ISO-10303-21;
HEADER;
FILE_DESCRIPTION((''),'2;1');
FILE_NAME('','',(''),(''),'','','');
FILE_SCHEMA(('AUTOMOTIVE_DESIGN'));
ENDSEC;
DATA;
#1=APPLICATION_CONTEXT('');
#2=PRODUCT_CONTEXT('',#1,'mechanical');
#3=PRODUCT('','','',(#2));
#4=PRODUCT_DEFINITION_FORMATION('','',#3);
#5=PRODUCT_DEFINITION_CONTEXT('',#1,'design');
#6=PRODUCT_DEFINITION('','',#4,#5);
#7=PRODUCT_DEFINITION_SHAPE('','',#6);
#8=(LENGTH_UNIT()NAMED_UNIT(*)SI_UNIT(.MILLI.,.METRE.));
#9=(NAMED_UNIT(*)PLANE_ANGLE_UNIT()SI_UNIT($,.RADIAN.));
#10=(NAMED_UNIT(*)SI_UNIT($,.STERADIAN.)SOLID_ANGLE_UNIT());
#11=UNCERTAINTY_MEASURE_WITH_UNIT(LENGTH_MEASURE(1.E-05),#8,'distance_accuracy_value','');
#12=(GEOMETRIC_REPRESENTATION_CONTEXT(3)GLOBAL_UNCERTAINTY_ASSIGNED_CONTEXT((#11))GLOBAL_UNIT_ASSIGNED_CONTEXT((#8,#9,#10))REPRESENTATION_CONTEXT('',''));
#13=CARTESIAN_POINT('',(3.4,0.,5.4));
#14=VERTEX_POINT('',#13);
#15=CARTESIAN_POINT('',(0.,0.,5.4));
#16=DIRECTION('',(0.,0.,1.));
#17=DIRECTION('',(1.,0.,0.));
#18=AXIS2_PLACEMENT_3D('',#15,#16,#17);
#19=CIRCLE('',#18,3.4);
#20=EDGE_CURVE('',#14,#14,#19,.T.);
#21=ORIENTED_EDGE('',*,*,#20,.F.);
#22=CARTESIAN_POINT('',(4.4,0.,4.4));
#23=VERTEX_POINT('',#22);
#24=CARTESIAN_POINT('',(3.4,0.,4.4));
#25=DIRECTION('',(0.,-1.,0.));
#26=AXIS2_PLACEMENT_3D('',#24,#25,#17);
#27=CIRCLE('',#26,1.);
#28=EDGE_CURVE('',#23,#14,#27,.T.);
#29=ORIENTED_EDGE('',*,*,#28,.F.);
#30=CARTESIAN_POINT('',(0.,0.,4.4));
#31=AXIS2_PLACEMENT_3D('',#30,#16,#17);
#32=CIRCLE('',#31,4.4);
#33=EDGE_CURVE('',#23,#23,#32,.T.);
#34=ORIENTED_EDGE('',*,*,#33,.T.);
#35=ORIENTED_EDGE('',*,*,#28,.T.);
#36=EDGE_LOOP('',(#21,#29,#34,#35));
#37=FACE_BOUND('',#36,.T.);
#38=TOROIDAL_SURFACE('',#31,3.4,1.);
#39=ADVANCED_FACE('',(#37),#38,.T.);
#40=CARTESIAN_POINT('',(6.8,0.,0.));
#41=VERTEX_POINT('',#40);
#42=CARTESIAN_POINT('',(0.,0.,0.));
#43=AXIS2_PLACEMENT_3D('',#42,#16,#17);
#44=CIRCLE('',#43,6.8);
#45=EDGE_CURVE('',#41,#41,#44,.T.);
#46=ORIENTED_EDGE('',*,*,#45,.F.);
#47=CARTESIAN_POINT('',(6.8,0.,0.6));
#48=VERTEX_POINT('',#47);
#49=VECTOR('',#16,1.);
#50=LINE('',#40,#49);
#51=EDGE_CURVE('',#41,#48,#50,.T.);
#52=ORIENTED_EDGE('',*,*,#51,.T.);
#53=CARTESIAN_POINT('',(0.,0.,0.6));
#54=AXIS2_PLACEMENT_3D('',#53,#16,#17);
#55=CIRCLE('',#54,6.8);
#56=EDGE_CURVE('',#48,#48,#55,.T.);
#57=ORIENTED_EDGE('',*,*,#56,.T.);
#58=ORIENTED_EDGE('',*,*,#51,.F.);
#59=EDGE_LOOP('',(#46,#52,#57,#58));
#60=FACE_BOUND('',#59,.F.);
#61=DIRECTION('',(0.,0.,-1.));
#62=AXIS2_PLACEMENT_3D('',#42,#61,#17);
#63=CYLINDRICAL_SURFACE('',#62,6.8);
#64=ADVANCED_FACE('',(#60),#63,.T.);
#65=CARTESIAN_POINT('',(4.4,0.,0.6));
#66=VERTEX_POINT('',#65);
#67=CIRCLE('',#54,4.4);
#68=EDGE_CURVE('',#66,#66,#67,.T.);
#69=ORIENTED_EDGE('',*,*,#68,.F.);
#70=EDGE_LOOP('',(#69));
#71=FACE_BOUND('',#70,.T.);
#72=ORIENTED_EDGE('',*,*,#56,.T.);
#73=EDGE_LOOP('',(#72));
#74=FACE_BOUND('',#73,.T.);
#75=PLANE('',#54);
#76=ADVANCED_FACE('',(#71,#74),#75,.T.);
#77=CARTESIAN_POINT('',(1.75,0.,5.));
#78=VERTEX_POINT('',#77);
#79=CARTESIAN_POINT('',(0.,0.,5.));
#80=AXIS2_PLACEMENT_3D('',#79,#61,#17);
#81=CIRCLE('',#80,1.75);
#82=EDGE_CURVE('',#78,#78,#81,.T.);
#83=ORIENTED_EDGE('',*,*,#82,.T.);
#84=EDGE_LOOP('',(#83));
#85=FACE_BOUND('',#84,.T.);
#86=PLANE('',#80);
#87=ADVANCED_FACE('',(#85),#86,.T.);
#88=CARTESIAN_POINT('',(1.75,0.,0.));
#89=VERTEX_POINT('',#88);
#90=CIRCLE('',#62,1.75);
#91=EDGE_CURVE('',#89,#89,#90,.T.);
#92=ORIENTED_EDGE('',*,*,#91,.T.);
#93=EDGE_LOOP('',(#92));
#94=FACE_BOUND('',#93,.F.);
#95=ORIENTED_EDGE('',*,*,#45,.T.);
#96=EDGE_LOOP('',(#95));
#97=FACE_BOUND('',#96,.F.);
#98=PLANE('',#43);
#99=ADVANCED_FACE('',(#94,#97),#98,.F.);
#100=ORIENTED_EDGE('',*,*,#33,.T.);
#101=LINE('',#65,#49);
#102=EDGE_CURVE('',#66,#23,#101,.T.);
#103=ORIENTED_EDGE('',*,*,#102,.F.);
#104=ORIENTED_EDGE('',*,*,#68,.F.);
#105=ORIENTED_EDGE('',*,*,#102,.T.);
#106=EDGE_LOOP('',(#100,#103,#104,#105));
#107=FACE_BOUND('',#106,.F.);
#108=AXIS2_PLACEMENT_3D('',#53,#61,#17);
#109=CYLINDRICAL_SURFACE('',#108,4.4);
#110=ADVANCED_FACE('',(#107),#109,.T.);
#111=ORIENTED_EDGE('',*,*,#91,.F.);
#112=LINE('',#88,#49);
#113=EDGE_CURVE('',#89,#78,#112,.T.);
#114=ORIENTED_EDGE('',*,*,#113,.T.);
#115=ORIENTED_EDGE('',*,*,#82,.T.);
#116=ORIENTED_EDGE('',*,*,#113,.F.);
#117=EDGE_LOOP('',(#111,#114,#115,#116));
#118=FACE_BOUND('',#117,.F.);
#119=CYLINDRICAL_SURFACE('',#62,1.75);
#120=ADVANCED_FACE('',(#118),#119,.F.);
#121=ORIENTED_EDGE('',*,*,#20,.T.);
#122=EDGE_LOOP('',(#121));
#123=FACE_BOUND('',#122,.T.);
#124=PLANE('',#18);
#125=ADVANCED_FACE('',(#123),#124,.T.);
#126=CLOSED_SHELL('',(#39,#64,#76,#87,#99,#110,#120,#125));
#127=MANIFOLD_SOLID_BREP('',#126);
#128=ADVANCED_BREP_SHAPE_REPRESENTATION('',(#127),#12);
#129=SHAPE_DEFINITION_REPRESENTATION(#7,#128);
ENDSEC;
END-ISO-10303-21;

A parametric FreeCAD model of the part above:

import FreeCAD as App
import Part
import Sketcher

V = App.Vector
Q = App.Units.Quantity


def edges_at(feature, points):
    """Names of the edges that pass closest to the given points."""
    edges = feature.Shape.Edges
    near = lambda p: min(range(len(edges)), key=lambda i: edges[i].distToShape(Part.Vertex(*p))[0])
    return sorted({f"Edge{near(p) + 1}" for p in points})

doc = App.newDocument("Part")
params = doc.addObject("Spreadsheet::Sheet", "Params")
for row, (alias, value) in enumerate([
    ("sketch1_diameter", "13.6 mm"),
    ("pad1_length", "0.6 mm"),
    ("sketch2_diameter", "8.8 mm"),
    ("pad2_length", "4.8 mm"),
    ("sketch3_diameter", "3.5 mm"),
    ("pocket1_length", "5 mm"),
    ("fillet_radius", "1 mm"),
], start=1):
    params.set(f"A{row}", alias)
    params.set(f"B{row}", "=" + value)
    params.setAlias(f"B{row}", alias)

body = doc.addObject("PartDesign::Body", "Body")

# Sketch on XY plane
sketch1 = doc.addObject("Sketcher::SketchObject", "Sketch")
body.addObject(sketch1)
sketch1.AttachmentSupport = (doc.XY_Plane, [""])
sketch1.MapMode = "FlatFace"
sketch1.addGeometry(Part.Circle(V(0, 0, 0), V(0, 0, 1), 6.8), False)
sketch1.addConstraint(Sketcher.Constraint("Coincident", 0, 3, -1, 1))
sketch1.addConstraint(Sketcher.Constraint("Diameter", 0, Q("13.6 mm")))
sketch1.setExpression("Constraints[1]", "Params.sketch1_diameter")
pad1 = doc.addObject("PartDesign::Pad", "Pad")
body.addObject(pad1)
pad1.Profile = sketch1
pad1.setExpression("Length", "Params.pad1_length")

# Sketch on XY plane
sketch2 = doc.addObject("Sketcher::SketchObject", "Sketch001")
body.addObject(sketch2)
sketch2.AttachmentSupport = (doc.XY_Plane, [""])
sketch2.MapMode = "FlatFace"
sketch2.AttachmentOffset = App.Placement(V(0, 0, 0.6), App.Rotation())
sketch2.addGeometry(Part.Circle(V(0, 0, 0), V(0, 0, 1), 4.4), False)
sketch2.addConstraint(Sketcher.Constraint("Coincident", 0, 3, -1, 1))
sketch2.addConstraint(Sketcher.Constraint("Diameter", 0, Q("8.8 mm")))
sketch2.setExpression("Constraints[1]", "Params.sketch2_diameter")
pad2 = doc.addObject("PartDesign::Pad", "Pad001")
body.addObject(pad2)
pad2.Profile = sketch2
pad2.setExpression("Length", "Params.pad2_length")

# Sketch on XY plane
sketch3 = doc.addObject("Sketcher::SketchObject", "Sketch002")
body.addObject(sketch3)
sketch3.AttachmentSupport = (doc.XY_Plane, [""])
sketch3.MapMode = "FlatFace"
sketch3.addGeometry(Part.Circle(V(0, 0, 0), V(0, 0, 1), 1.75), False)
sketch3.addConstraint(Sketcher.Constraint("Coincident", 0, 3, -1, 1))
sketch3.addConstraint(Sketcher.Constraint("Diameter", 0, Q("3.5 mm")))
sketch3.setExpression("Constraints[1]", "Params.sketch3_diameter")
pocket1 = doc.addObject("PartDesign::Pocket", "Pocket")
body.addObject(pocket1)
pocket1.Profile = sketch3
pocket1.setExpression("Length", "Params.pocket1_length")
pocket1.Reversed = True
doc.recompute()

fillet = doc.addObject("PartDesign::Fillet", "Fillet")
body.addObject(fillet)
fillet.Base = (pocket1, edges_at(pocket1, [(-4.4, 0, 5.4)]))
fillet.setExpression("Radius", "Params.fillet_radius")

doc.recompute()
